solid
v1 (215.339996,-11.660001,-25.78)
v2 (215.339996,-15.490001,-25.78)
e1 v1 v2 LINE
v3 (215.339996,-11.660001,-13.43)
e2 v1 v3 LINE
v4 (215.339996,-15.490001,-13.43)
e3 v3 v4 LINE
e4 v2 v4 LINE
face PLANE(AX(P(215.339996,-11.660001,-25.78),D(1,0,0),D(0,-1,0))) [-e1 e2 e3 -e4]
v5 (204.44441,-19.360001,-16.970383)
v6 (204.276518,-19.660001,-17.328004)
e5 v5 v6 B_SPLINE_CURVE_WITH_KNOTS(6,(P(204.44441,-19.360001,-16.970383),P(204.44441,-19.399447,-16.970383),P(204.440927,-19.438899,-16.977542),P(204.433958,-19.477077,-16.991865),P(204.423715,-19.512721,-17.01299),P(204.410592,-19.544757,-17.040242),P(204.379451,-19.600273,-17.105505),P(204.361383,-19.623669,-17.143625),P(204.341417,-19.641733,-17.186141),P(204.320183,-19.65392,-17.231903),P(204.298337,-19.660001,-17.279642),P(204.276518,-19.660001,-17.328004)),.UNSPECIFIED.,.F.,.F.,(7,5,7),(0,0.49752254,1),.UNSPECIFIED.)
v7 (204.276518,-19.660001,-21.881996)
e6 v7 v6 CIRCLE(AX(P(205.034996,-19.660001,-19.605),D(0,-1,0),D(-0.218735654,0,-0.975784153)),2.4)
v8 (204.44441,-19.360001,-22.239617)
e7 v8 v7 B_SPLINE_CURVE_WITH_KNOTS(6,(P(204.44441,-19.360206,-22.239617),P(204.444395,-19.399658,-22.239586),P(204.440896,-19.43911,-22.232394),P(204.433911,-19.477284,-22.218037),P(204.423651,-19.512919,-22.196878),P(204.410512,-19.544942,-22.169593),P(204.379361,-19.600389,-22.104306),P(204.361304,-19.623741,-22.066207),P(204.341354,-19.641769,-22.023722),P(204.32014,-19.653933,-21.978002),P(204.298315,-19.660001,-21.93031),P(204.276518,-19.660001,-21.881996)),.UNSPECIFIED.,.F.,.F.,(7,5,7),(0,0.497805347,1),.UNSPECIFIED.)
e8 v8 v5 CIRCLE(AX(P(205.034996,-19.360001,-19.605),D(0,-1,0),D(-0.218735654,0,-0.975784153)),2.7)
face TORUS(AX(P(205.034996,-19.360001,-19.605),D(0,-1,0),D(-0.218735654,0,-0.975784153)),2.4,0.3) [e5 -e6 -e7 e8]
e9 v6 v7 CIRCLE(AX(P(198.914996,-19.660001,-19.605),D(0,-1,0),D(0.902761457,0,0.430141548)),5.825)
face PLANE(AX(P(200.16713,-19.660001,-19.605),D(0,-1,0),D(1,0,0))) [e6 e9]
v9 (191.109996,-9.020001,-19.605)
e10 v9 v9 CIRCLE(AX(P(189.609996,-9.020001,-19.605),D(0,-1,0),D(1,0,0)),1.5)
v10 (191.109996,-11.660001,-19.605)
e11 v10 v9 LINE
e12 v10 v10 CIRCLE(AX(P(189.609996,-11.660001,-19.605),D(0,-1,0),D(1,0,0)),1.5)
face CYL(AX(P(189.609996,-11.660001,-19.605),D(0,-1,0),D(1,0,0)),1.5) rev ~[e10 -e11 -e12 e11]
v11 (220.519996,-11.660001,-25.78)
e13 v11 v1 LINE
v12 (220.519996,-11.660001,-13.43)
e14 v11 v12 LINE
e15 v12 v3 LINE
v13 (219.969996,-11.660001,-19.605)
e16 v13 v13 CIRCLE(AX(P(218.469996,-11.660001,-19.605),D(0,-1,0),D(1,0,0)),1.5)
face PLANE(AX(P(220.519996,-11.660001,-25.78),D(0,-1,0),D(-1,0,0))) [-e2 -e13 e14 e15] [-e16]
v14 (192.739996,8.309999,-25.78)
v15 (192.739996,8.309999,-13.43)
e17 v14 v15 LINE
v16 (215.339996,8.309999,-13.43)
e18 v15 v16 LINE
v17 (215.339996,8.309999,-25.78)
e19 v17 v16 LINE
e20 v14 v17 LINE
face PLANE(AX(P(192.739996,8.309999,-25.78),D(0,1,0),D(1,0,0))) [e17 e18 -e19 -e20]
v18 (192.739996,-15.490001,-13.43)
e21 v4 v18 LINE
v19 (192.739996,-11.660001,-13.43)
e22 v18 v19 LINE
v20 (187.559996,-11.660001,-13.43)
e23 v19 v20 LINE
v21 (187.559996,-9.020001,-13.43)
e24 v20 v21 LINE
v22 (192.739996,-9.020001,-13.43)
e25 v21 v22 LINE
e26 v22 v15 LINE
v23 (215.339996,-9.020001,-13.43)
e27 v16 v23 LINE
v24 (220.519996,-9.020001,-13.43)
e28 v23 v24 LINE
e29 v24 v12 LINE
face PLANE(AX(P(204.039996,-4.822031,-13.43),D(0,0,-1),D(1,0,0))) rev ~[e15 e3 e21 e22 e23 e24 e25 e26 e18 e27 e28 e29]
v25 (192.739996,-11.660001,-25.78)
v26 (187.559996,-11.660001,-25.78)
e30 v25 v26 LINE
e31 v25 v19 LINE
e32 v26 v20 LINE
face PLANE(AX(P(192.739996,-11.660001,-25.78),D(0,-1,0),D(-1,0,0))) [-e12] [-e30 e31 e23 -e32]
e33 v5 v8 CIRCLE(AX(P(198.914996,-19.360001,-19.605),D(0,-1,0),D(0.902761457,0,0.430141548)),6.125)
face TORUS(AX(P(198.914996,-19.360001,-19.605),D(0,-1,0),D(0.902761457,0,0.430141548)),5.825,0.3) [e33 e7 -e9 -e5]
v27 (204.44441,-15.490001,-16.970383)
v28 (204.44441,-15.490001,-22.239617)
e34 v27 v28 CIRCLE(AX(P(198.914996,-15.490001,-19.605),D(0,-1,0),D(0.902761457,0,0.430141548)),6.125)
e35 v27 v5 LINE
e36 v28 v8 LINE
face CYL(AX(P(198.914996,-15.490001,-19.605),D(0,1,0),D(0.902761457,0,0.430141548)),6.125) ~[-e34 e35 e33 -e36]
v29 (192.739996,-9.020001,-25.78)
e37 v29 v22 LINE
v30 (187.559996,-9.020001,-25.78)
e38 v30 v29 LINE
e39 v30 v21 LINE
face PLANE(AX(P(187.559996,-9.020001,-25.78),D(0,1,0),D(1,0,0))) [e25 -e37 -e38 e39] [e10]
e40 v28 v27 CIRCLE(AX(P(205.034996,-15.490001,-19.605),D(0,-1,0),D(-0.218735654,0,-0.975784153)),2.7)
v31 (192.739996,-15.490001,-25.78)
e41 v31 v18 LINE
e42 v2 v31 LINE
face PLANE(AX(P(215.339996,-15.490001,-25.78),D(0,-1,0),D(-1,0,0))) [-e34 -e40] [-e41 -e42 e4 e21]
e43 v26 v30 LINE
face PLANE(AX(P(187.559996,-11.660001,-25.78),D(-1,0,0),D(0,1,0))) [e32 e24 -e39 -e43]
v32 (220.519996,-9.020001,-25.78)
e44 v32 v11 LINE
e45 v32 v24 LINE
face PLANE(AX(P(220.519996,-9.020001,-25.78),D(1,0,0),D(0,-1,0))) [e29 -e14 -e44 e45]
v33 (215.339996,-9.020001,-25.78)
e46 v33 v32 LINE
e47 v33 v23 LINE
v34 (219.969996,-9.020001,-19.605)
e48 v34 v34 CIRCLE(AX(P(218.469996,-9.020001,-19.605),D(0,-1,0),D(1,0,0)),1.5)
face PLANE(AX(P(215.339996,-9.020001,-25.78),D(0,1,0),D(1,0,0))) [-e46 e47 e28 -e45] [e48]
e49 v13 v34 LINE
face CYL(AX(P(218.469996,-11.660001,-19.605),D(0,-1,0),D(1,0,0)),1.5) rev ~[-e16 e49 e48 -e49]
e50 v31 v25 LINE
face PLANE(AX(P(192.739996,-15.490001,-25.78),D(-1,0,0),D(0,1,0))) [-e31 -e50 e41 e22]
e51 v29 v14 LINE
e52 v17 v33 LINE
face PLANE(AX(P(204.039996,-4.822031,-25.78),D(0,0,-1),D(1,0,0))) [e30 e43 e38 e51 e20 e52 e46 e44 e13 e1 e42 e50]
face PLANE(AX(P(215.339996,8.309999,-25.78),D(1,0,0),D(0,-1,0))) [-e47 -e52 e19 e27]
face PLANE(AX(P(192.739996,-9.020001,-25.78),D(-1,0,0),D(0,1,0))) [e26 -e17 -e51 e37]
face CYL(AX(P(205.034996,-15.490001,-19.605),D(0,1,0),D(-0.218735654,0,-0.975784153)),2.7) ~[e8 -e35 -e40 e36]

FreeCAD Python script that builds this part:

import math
import FreeCAD as App
import Part
import Sketcher


def edges_at(feature, points):
    """Names of the edges that pass closest to the given points."""
    edges = feature.Shape.Edges
    near = lambda p: min(range(len(edges)), key=lambda i: edges[i].distToShape(Part.Vertex(*p))[0])
    return sorted({f"Edge{near(p) + 1}" for p in points})


def add_polygon(sketch, points):
    """Adds a closed chain of lines whose ends are joined by coincident constraints."""
    first, n = sketch.GeometryCount, len(points)
    for a, b in zip(points, points[1:] + points[:1]):
        sketch.addGeometry(Part.LineSegment(App.Vector(*a, 0), App.Vector(*b, 0)), False)
    for i in range(n):
        sketch.addConstraint(Sketcher.Constraint("Coincident", first + i, 2, first + (i + 1) % n, 1))

doc = App.newDocument("Part")
body = doc.addObject("PartDesign::Body", "Body")

sketch1 = doc.addObject("Sketcher::SketchObject", "Sketch")
body.addObject(sketch1)
sketch1.AttachmentSupport = (doc.XY_Plane, [""])
sketch1.MapMode = "FlatFace"
add_polygon(sketch1, [(22.6, 23.8), (0, 23.8), (0, 20), (-5.2, 20), (-5.2, 17.3), (0, 17.3), (0, 0), (22.6, 0), (22.6, 17.3), (27.8, 17.3), (27.8, 20), (22.6, 20)])
sketch1.addConstraint([
    Sketcher.Constraint("Horizontal", 0),
    Sketcher.Constraint("Vertical", 1),
    Sketcher.Constraint("Horizontal", 2),
    Sketcher.Constraint("Vertical", 3),
    Sketcher.Constraint("Horizontal", 4),
    Sketcher.Constraint("Vertical", 5),
    Sketcher.Constraint("Horizontal", 6),
    Sketcher.Constraint("Vertical", 7),
    Sketcher.Constraint("Horizontal", 8),
    Sketcher.Constraint("Vertical", 9),
    Sketcher.Constraint("Horizontal", 10),
    Sketcher.Constraint("Vertical", 11),
    Sketcher.Constraint("Coincident", 5, 2, -1, 1),
    Sketcher.Constraint("PointOnObject", 0, 2, -2),
    Sketcher.Constraint("Horizontal", 4, 2, 7, 2),
    Sketcher.Constraint("Horizontal", 2, 2, 9, 2),
    Sketcher.Constraint("Vertical", 7, 2, 10, 2),
    Sketcher.Constraint("Equal", 4, 8),
    Sketcher.Constraint("DistanceX", 0, 2, 0, 1, 22.6),
    Sketcher.Constraint("DistanceX", 2, 2, 2, 1, 5.18),
    Sketcher.Constraint("DistanceY", 1, 2, 1, 1, 3.83),
    Sketcher.Constraint("DistanceY", 3, 2, 3, 1, 2.64),
    Sketcher.Constraint("DistanceY", 5, 2, 5, 1, 17.33),
])
pad1 = doc.addObject("PartDesign::Pad", "Pad")
body.addObject(pad1)
pad1.Profile = sketch1
pad1.Length = 12.35

sketch2 = doc.addObject("Sketcher::SketchObject", "Sketch001")
body.addObject(sketch2)
sketch2.AttachmentSupport = (doc.XZ_Plane, [""])
sketch2.MapMode = "FlatFace"
sketch2.AttachmentOffset = App.Placement(App.Vector(0, 0, -23.8), App.Rotation())
sketch2.addGeometry([
    Part.ArcOfCircle(Part.Circle(App.Vector(16.4, 6.2, 0), App.Vector(0, 0, 1), 6.1), math.radians(-155), math.radians(155)),
    Part.ArcOfCircle(Part.Circle(App.Vector(10.3, 6.2, 0), App.Vector(0, 0, 1), 2.7), math.radians(77), math.radians(283)),
], False)
sketch2.addConstraint([
    Sketcher.Constraint("Coincident", 0, 1, 1, 2),
    Sketcher.Constraint("Coincident", 1, 1, 0, 2),
    Sketcher.Constraint("Horizontal", 0, 3, 1, 3),
    Sketcher.Constraint("Radius", 1, 2.7),
    Sketcher.Constraint("Radius", 0, 6.125),
    Sketcher.Constraint("DistanceX", 1, 3, 0, 3, 6.12),
    Sketcher.Constraint("DistanceX", -1, 1, 0, 3, 16.425),
    Sketcher.Constraint("DistanceY", -1, 1, 0, 3, 6.175),
])
pad2 = doc.addObject("PartDesign::Pad", "Pad001")
body.addObject(pad2)
pad2.Profile = sketch2
pad2.Length = 4.17
pad2.Reversed = True

sketch3 = doc.addObject("Sketcher::SketchObject", "Sketch002")
body.addObject(sketch3)
sketch3.AttachmentSupport = (doc.XZ_Plane, [""])
sketch3.MapMode = "FlatFace"
sketch3.AttachmentOffset = App.Placement(App.Vector(0, 0, -19.97), App.Rotation())
sketch3.addGeometry([
    Part.Circle(App.Vector(25.7, 6.2, 0), App.Vector(0, 0, 1), 1.5),
    Part.Circle(App.Vector(-3.1, 6.2, 0), App.Vector(0, 0, 1), 1.5),
], False)
sketch3.addConstraint([
    Sketcher.Constraint("Equal", 0, 1),
    Sketcher.Constraint("Horizontal", 0, 3, 1, 3),
    Sketcher.Constraint("Diameter", 0, 3.0),
    Sketcher.Constraint("DistanceX", -1, 1, 0, 3, 25.73),
    Sketcher.Constraint("DistanceX", 1, 3, -1, 1, 3.13),
    Sketcher.Constraint("DistanceY", -1, 1, 0, 3, 6.175),
])
pocket1 = doc.addObject("PartDesign::Pocket", "Pocket")
body.addObject(pocket1)
pocket1.Profile = sketch3
pocket1.Length = 5
pocket1.Reversed = True
doc.recompute()

fillet = doc.addObject("PartDesign::Fillet", "Fillet")
body.addObject(fillet)
fillet.Base = (pocket1, edges_at(pocket1, [(22.55, 27.97, 6.175), (7.605, 27.97, 6.175)]))
fillet.Radius = 0.3
body2 = doc.addObject("PartDesign::Body", "Body001")
doc.recompute()

body.Placement = App.Placement(App.Vector(215.339996, 8.309999, -25.78), App.Rotation(App.Vector(0, 0, 1), 180))
boolean = doc.addObject("PartDesign::Boolean", "Boolean")
body2.addObject(boolean)
boolean.Type = "Fuse"
boolean.addObjects([body])

doc.recompute()
